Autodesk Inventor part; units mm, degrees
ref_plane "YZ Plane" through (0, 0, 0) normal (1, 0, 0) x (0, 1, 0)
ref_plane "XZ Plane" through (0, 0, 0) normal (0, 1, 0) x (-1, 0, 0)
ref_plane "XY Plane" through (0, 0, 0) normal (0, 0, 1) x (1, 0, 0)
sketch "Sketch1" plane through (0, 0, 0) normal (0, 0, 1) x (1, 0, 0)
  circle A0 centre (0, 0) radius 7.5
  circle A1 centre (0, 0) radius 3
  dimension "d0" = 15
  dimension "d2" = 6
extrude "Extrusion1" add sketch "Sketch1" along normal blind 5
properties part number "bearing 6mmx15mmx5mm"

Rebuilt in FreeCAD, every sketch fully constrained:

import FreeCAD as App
import Part
import Sketcher

V = App.Vector
Q = App.Units.Quantity

doc = App.newDocument("Part")
params = doc.addObject("Spreadsheet::Sheet", "Params")
for row, (alias, value) in enumerate([
    ("sketch1_diameter", "15 mm"),
    ("sketch1_diameter2", "6 mm"),
    ("pad1_length", "5 mm"),
], start=1):
    params.set(f"A{row}", alias)
    params.set(f"B{row}", "=" + value)
    params.setAlias(f"B{row}", alias)

body = doc.addObject("PartDesign::Body", "Body")

# Sketch on XY plane
sketch1 = body.newObject("Sketcher::SketchObject", "Sketch")
sketch1.AttachmentSupport = (doc.getObject("XY_Plane"), [""])
sketch1.MapMode = "FlatFace"
sketch1.addGeometry(Part.Circle(V(0, 0, 0), V(0, 0, 1), 7.5), False)
sketch1.addGeometry(Part.Circle(V(0, 0, 0), V(0, 0, 1), 3), False)
sketch1.addConstraint(Sketcher.Constraint("Coincident", 0, 3, -1, 1))
sketch1.addConstraint(Sketcher.Constraint("Coincident", 1, 3, -1, 1))
sketch1.addConstraint(Sketcher.Constraint("Diameter", 0, Q("15 mm")))
sketch1.addConstraint(Sketcher.Constraint("Diameter", 1, Q("6 mm")))
sketch1.setExpression("Constraints[2]", "Params.sketch1_diameter")
sketch1.setExpression("Constraints[3]", "Params.sketch1_diameter2")
pad1 = body.newObject("PartDesign::Pad", "Pad")
pad1.Profile = sketch1
pad1.setExpression("Length", "Params.pad1_length")

doc.recompute()
